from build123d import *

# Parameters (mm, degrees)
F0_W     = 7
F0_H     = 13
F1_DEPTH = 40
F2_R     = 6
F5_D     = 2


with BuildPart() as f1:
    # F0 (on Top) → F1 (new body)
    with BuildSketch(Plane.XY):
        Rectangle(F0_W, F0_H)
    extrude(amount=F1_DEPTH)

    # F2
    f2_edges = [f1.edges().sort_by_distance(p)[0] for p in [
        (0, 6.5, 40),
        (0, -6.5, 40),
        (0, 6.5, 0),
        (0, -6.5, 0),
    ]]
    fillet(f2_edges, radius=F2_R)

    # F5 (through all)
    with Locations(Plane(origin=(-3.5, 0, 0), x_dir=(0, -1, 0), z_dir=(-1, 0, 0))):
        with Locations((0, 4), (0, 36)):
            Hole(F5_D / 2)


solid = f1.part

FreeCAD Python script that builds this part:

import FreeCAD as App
import Part
import Sketcher


def edges_at(feature, points):
    """Names of the edges that pass closest to the given points."""
    edges = feature.Shape.Edges
    near = lambda p: min(range(len(edges)), key=lambda i: edges[i].distToShape(Part.Vertex(*p))[0])
    return sorted({f"Edge{near(p) + 1}" for p in points})

doc = App.newDocument("Part")
body = doc.addObject("PartDesign::Body", "Body")

# Sketch on XY plane
sketch1 = doc.addObject("Sketcher::SketchObject", "Sketch")
body.addObject(sketch1)
sketch1.AttachmentSupport = (doc.XY_Plane, [""])
sketch1.MapMode = "FlatFace"
sketch1.addGeometry([
    Part.LineSegment(App.Vector(-4, 6, 0), App.Vector(-4, -6, 0)),
    Part.LineSegment(App.Vector(-4, -6, 0), App.Vector(4, -6, 0)),
    Part.LineSegment(App.Vector(4, -6, 0), App.Vector(4, 6, 0)),
    Part.LineSegment(App.Vector(4, 6, 0), App.Vector(-4, 6, 0)),
], False)
sketch1.addConstraint([
    Sketcher.Constraint("Coincident", 0, 2, 1, 1),
    Sketcher.Constraint("Coincident", 1, 2, 2, 1),
    Sketcher.Constraint("Coincident", 2, 2, 3, 1),
    Sketcher.Constraint("Coincident", 3, 2, 0, 1),
    Sketcher.Constraint("Vertical", 0),
    Sketcher.Constraint("Horizontal", 1),
    Sketcher.Constraint("Vertical", 2),
    Sketcher.Constraint("Horizontal", 3),
    Sketcher.Constraint("Symmetric", 0, 2, 2, 2, -1, 1),
    Sketcher.Constraint("DistanceX", 1, 1, 1, 2, 7.0),
    Sketcher.Constraint("DistanceY", 0, 2, 0, 1, 13.0),
])
pad1 = doc.addObject("PartDesign::Pad", "Pad")
body.addObject(pad1)
pad1.Profile = sketch1
pad1.Length = 40
doc.recompute()

fillet = doc.addObject("PartDesign::Fillet", "Fillet")
body.addObject(fillet)
fillet.Base = (pad1, edges_at(pad1, [
    (0, 6.5, 40),
    (0, -6.5, 40),
    (0, 6.5, 0),
    (0, -6.5, 0),
]))
fillet.Radius = 6

# Sketch on YZ plane
sketch2 = doc.addObject("Sketcher::SketchObject", "Sketch001")
body.addObject(sketch2)
sketch2.AttachmentSupport = (doc.YZ_Plane, [""])
sketch2.MapMode = "FlatFace"
sketch2.AttachmentOffset = App.Placement(App.Vector(0, 0, -3.5), App.Rotation())
sketch2.addGeometry([
    Part.Circle(App.Vector(0, 4, 0), App.Vector(0, 0, 1), 1),
    Part.Circle(App.Vector(0, 36, 0), App.Vector(0, 0, 1), 1),
], False)
sketch2.addConstraint([
    Sketcher.Constraint("Equal", 0, 1),
    Sketcher.Constraint("PointOnObject", 0, 3, -2),
    Sketcher.Constraint("PointOnObject", 1, 3, -2),
    Sketcher.Constraint("Diameter", 0, 2.0),
    Sketcher.Constraint("DistanceY", -1, 1, 0, 3, 4.0),
    Sketcher.Constraint("DistanceY", -1, 1, 1, 3, 36.0),
])
doc.recompute()
hole = doc.addObject("PartDesign::Hole", "Hole")
body.addObject(hole)
hole.Profile = sketch2
hole.ThreadType = "None"
hole.Diameter = 2
hole.DepthType = "ThroughAll"
hole.Reversed = True

doc.recompute()
